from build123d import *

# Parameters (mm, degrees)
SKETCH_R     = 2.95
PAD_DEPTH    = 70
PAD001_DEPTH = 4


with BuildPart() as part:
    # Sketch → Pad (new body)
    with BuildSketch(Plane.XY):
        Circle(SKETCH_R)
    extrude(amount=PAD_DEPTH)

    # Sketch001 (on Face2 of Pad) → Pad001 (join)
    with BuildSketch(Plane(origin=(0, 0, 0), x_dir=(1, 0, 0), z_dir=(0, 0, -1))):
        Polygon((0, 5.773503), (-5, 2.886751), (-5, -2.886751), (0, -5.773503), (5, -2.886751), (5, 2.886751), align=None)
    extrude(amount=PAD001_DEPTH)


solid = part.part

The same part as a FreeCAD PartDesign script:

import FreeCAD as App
import Part
import Sketcher
Q = App.Units.Quantity

doc = App.newDocument("Part")
body = doc.addObject("PartDesign::Body", "Body")

sketch1 = doc.addObject("Sketcher::SketchObject", "Sketch")
body.addObject(sketch1)
sketch1.AttachmentSupport = (doc.XY_Plane, [""])
sketch1.MapMode = "FlatFace"
sketch1.addGeometry(Part.Circle(App.Vector(0, 0, 0), App.Vector(0, 0, 1), 3), False)
sketch1.addConstraint(Sketcher.Constraint("Coincident", 0, 3, -1, 1))
sketch1.addConstraint(Sketcher.Constraint("Diameter", 0, Q("5.9 mm")))
pad1 = doc.addObject("PartDesign::Pad", "Pad")
body.addObject(pad1)
pad1.Profile = sketch1
pad1.Length = 70

sketch2 = doc.addObject("Sketcher::SketchObject", "Sketch001")
body.addObject(sketch2)
sketch2.AttachmentSupport = (doc.XY_Plane, [""])
sketch2.MapMode = "FlatFace"
sketch2.addGeometry(Part.LineSegment(App.Vector(0, -6, 0), App.Vector(-5, -3, 0)), False)
sketch2.addGeometry(Part.LineSegment(App.Vector(-5, -3, 0), App.Vector(-5, 3, 0)), False)
sketch2.addGeometry(Part.LineSegment(App.Vector(-5, 3, 0), App.Vector(0, 6, 0)), False)
sketch2.addGeometry(Part.LineSegment(App.Vector(0, 6, 0), App.Vector(5, 3, 0)), False)
sketch2.addGeometry(Part.LineSegment(App.Vector(5, 3, 0), App.Vector(5, -3, 0)), False)
sketch2.addGeometry(Part.LineSegment(App.Vector(5, -3, 0), App.Vector(0, -6, 0)), False)
sketch2.addConstraint(Sketcher.Constraint("Coincident", 0, 2, 1, 1))
sketch2.addConstraint(Sketcher.Constraint("Coincident", 1, 2, 2, 1))
sketch2.addConstraint(Sketcher.Constraint("Coincident", 2, 2, 3, 1))
sketch2.addConstraint(Sketcher.Constraint("Coincident", 3, 2, 4, 1))
sketch2.addConstraint(Sketcher.Constraint("Coincident", 4, 2, 5, 1))
sketch2.addConstraint(Sketcher.Constraint("Coincident", 5, 2, 0, 1))
sketch2.addConstraint(Sketcher.Constraint("Vertical", 1))
sketch2.addConstraint(Sketcher.Constraint("Vertical", 4))
sketch2.addConstraint(Sketcher.Constraint("Symmetric", 0, 2, 3, 2, -1, 1))
sketch2.addConstraint(Sketcher.Constraint("Symmetric", 2, 2, 5, 2, -1, 1))
sketch2.addConstraint(Sketcher.Constraint("PointOnObject", 2, 2, -2))
sketch2.addConstraint(Sketcher.Constraint("Parallel", 2, 5))
sketch2.addConstraint(Sketcher.Constraint("Horizontal", 1, 2, 3, 2))
sketch2.addConstraint(Sketcher.Constraint("Angle", 0, Q("149.999994 deg")))
sketch2.addConstraint(Sketcher.Constraint("DistanceX", 0, 2, -1, 1, Q("5 mm")))
sketch2.addConstraint(Sketcher.Constraint("DistanceY", 1, 1, 1, 2, Q("5.773502 mm")))
pad2 = doc.addObject("PartDesign::Pad", "Pad001")
body.addObject(pad2)
pad2.Profile = sketch2
pad2.Length = 4
pad2.Reversed = True

doc.recompute()
